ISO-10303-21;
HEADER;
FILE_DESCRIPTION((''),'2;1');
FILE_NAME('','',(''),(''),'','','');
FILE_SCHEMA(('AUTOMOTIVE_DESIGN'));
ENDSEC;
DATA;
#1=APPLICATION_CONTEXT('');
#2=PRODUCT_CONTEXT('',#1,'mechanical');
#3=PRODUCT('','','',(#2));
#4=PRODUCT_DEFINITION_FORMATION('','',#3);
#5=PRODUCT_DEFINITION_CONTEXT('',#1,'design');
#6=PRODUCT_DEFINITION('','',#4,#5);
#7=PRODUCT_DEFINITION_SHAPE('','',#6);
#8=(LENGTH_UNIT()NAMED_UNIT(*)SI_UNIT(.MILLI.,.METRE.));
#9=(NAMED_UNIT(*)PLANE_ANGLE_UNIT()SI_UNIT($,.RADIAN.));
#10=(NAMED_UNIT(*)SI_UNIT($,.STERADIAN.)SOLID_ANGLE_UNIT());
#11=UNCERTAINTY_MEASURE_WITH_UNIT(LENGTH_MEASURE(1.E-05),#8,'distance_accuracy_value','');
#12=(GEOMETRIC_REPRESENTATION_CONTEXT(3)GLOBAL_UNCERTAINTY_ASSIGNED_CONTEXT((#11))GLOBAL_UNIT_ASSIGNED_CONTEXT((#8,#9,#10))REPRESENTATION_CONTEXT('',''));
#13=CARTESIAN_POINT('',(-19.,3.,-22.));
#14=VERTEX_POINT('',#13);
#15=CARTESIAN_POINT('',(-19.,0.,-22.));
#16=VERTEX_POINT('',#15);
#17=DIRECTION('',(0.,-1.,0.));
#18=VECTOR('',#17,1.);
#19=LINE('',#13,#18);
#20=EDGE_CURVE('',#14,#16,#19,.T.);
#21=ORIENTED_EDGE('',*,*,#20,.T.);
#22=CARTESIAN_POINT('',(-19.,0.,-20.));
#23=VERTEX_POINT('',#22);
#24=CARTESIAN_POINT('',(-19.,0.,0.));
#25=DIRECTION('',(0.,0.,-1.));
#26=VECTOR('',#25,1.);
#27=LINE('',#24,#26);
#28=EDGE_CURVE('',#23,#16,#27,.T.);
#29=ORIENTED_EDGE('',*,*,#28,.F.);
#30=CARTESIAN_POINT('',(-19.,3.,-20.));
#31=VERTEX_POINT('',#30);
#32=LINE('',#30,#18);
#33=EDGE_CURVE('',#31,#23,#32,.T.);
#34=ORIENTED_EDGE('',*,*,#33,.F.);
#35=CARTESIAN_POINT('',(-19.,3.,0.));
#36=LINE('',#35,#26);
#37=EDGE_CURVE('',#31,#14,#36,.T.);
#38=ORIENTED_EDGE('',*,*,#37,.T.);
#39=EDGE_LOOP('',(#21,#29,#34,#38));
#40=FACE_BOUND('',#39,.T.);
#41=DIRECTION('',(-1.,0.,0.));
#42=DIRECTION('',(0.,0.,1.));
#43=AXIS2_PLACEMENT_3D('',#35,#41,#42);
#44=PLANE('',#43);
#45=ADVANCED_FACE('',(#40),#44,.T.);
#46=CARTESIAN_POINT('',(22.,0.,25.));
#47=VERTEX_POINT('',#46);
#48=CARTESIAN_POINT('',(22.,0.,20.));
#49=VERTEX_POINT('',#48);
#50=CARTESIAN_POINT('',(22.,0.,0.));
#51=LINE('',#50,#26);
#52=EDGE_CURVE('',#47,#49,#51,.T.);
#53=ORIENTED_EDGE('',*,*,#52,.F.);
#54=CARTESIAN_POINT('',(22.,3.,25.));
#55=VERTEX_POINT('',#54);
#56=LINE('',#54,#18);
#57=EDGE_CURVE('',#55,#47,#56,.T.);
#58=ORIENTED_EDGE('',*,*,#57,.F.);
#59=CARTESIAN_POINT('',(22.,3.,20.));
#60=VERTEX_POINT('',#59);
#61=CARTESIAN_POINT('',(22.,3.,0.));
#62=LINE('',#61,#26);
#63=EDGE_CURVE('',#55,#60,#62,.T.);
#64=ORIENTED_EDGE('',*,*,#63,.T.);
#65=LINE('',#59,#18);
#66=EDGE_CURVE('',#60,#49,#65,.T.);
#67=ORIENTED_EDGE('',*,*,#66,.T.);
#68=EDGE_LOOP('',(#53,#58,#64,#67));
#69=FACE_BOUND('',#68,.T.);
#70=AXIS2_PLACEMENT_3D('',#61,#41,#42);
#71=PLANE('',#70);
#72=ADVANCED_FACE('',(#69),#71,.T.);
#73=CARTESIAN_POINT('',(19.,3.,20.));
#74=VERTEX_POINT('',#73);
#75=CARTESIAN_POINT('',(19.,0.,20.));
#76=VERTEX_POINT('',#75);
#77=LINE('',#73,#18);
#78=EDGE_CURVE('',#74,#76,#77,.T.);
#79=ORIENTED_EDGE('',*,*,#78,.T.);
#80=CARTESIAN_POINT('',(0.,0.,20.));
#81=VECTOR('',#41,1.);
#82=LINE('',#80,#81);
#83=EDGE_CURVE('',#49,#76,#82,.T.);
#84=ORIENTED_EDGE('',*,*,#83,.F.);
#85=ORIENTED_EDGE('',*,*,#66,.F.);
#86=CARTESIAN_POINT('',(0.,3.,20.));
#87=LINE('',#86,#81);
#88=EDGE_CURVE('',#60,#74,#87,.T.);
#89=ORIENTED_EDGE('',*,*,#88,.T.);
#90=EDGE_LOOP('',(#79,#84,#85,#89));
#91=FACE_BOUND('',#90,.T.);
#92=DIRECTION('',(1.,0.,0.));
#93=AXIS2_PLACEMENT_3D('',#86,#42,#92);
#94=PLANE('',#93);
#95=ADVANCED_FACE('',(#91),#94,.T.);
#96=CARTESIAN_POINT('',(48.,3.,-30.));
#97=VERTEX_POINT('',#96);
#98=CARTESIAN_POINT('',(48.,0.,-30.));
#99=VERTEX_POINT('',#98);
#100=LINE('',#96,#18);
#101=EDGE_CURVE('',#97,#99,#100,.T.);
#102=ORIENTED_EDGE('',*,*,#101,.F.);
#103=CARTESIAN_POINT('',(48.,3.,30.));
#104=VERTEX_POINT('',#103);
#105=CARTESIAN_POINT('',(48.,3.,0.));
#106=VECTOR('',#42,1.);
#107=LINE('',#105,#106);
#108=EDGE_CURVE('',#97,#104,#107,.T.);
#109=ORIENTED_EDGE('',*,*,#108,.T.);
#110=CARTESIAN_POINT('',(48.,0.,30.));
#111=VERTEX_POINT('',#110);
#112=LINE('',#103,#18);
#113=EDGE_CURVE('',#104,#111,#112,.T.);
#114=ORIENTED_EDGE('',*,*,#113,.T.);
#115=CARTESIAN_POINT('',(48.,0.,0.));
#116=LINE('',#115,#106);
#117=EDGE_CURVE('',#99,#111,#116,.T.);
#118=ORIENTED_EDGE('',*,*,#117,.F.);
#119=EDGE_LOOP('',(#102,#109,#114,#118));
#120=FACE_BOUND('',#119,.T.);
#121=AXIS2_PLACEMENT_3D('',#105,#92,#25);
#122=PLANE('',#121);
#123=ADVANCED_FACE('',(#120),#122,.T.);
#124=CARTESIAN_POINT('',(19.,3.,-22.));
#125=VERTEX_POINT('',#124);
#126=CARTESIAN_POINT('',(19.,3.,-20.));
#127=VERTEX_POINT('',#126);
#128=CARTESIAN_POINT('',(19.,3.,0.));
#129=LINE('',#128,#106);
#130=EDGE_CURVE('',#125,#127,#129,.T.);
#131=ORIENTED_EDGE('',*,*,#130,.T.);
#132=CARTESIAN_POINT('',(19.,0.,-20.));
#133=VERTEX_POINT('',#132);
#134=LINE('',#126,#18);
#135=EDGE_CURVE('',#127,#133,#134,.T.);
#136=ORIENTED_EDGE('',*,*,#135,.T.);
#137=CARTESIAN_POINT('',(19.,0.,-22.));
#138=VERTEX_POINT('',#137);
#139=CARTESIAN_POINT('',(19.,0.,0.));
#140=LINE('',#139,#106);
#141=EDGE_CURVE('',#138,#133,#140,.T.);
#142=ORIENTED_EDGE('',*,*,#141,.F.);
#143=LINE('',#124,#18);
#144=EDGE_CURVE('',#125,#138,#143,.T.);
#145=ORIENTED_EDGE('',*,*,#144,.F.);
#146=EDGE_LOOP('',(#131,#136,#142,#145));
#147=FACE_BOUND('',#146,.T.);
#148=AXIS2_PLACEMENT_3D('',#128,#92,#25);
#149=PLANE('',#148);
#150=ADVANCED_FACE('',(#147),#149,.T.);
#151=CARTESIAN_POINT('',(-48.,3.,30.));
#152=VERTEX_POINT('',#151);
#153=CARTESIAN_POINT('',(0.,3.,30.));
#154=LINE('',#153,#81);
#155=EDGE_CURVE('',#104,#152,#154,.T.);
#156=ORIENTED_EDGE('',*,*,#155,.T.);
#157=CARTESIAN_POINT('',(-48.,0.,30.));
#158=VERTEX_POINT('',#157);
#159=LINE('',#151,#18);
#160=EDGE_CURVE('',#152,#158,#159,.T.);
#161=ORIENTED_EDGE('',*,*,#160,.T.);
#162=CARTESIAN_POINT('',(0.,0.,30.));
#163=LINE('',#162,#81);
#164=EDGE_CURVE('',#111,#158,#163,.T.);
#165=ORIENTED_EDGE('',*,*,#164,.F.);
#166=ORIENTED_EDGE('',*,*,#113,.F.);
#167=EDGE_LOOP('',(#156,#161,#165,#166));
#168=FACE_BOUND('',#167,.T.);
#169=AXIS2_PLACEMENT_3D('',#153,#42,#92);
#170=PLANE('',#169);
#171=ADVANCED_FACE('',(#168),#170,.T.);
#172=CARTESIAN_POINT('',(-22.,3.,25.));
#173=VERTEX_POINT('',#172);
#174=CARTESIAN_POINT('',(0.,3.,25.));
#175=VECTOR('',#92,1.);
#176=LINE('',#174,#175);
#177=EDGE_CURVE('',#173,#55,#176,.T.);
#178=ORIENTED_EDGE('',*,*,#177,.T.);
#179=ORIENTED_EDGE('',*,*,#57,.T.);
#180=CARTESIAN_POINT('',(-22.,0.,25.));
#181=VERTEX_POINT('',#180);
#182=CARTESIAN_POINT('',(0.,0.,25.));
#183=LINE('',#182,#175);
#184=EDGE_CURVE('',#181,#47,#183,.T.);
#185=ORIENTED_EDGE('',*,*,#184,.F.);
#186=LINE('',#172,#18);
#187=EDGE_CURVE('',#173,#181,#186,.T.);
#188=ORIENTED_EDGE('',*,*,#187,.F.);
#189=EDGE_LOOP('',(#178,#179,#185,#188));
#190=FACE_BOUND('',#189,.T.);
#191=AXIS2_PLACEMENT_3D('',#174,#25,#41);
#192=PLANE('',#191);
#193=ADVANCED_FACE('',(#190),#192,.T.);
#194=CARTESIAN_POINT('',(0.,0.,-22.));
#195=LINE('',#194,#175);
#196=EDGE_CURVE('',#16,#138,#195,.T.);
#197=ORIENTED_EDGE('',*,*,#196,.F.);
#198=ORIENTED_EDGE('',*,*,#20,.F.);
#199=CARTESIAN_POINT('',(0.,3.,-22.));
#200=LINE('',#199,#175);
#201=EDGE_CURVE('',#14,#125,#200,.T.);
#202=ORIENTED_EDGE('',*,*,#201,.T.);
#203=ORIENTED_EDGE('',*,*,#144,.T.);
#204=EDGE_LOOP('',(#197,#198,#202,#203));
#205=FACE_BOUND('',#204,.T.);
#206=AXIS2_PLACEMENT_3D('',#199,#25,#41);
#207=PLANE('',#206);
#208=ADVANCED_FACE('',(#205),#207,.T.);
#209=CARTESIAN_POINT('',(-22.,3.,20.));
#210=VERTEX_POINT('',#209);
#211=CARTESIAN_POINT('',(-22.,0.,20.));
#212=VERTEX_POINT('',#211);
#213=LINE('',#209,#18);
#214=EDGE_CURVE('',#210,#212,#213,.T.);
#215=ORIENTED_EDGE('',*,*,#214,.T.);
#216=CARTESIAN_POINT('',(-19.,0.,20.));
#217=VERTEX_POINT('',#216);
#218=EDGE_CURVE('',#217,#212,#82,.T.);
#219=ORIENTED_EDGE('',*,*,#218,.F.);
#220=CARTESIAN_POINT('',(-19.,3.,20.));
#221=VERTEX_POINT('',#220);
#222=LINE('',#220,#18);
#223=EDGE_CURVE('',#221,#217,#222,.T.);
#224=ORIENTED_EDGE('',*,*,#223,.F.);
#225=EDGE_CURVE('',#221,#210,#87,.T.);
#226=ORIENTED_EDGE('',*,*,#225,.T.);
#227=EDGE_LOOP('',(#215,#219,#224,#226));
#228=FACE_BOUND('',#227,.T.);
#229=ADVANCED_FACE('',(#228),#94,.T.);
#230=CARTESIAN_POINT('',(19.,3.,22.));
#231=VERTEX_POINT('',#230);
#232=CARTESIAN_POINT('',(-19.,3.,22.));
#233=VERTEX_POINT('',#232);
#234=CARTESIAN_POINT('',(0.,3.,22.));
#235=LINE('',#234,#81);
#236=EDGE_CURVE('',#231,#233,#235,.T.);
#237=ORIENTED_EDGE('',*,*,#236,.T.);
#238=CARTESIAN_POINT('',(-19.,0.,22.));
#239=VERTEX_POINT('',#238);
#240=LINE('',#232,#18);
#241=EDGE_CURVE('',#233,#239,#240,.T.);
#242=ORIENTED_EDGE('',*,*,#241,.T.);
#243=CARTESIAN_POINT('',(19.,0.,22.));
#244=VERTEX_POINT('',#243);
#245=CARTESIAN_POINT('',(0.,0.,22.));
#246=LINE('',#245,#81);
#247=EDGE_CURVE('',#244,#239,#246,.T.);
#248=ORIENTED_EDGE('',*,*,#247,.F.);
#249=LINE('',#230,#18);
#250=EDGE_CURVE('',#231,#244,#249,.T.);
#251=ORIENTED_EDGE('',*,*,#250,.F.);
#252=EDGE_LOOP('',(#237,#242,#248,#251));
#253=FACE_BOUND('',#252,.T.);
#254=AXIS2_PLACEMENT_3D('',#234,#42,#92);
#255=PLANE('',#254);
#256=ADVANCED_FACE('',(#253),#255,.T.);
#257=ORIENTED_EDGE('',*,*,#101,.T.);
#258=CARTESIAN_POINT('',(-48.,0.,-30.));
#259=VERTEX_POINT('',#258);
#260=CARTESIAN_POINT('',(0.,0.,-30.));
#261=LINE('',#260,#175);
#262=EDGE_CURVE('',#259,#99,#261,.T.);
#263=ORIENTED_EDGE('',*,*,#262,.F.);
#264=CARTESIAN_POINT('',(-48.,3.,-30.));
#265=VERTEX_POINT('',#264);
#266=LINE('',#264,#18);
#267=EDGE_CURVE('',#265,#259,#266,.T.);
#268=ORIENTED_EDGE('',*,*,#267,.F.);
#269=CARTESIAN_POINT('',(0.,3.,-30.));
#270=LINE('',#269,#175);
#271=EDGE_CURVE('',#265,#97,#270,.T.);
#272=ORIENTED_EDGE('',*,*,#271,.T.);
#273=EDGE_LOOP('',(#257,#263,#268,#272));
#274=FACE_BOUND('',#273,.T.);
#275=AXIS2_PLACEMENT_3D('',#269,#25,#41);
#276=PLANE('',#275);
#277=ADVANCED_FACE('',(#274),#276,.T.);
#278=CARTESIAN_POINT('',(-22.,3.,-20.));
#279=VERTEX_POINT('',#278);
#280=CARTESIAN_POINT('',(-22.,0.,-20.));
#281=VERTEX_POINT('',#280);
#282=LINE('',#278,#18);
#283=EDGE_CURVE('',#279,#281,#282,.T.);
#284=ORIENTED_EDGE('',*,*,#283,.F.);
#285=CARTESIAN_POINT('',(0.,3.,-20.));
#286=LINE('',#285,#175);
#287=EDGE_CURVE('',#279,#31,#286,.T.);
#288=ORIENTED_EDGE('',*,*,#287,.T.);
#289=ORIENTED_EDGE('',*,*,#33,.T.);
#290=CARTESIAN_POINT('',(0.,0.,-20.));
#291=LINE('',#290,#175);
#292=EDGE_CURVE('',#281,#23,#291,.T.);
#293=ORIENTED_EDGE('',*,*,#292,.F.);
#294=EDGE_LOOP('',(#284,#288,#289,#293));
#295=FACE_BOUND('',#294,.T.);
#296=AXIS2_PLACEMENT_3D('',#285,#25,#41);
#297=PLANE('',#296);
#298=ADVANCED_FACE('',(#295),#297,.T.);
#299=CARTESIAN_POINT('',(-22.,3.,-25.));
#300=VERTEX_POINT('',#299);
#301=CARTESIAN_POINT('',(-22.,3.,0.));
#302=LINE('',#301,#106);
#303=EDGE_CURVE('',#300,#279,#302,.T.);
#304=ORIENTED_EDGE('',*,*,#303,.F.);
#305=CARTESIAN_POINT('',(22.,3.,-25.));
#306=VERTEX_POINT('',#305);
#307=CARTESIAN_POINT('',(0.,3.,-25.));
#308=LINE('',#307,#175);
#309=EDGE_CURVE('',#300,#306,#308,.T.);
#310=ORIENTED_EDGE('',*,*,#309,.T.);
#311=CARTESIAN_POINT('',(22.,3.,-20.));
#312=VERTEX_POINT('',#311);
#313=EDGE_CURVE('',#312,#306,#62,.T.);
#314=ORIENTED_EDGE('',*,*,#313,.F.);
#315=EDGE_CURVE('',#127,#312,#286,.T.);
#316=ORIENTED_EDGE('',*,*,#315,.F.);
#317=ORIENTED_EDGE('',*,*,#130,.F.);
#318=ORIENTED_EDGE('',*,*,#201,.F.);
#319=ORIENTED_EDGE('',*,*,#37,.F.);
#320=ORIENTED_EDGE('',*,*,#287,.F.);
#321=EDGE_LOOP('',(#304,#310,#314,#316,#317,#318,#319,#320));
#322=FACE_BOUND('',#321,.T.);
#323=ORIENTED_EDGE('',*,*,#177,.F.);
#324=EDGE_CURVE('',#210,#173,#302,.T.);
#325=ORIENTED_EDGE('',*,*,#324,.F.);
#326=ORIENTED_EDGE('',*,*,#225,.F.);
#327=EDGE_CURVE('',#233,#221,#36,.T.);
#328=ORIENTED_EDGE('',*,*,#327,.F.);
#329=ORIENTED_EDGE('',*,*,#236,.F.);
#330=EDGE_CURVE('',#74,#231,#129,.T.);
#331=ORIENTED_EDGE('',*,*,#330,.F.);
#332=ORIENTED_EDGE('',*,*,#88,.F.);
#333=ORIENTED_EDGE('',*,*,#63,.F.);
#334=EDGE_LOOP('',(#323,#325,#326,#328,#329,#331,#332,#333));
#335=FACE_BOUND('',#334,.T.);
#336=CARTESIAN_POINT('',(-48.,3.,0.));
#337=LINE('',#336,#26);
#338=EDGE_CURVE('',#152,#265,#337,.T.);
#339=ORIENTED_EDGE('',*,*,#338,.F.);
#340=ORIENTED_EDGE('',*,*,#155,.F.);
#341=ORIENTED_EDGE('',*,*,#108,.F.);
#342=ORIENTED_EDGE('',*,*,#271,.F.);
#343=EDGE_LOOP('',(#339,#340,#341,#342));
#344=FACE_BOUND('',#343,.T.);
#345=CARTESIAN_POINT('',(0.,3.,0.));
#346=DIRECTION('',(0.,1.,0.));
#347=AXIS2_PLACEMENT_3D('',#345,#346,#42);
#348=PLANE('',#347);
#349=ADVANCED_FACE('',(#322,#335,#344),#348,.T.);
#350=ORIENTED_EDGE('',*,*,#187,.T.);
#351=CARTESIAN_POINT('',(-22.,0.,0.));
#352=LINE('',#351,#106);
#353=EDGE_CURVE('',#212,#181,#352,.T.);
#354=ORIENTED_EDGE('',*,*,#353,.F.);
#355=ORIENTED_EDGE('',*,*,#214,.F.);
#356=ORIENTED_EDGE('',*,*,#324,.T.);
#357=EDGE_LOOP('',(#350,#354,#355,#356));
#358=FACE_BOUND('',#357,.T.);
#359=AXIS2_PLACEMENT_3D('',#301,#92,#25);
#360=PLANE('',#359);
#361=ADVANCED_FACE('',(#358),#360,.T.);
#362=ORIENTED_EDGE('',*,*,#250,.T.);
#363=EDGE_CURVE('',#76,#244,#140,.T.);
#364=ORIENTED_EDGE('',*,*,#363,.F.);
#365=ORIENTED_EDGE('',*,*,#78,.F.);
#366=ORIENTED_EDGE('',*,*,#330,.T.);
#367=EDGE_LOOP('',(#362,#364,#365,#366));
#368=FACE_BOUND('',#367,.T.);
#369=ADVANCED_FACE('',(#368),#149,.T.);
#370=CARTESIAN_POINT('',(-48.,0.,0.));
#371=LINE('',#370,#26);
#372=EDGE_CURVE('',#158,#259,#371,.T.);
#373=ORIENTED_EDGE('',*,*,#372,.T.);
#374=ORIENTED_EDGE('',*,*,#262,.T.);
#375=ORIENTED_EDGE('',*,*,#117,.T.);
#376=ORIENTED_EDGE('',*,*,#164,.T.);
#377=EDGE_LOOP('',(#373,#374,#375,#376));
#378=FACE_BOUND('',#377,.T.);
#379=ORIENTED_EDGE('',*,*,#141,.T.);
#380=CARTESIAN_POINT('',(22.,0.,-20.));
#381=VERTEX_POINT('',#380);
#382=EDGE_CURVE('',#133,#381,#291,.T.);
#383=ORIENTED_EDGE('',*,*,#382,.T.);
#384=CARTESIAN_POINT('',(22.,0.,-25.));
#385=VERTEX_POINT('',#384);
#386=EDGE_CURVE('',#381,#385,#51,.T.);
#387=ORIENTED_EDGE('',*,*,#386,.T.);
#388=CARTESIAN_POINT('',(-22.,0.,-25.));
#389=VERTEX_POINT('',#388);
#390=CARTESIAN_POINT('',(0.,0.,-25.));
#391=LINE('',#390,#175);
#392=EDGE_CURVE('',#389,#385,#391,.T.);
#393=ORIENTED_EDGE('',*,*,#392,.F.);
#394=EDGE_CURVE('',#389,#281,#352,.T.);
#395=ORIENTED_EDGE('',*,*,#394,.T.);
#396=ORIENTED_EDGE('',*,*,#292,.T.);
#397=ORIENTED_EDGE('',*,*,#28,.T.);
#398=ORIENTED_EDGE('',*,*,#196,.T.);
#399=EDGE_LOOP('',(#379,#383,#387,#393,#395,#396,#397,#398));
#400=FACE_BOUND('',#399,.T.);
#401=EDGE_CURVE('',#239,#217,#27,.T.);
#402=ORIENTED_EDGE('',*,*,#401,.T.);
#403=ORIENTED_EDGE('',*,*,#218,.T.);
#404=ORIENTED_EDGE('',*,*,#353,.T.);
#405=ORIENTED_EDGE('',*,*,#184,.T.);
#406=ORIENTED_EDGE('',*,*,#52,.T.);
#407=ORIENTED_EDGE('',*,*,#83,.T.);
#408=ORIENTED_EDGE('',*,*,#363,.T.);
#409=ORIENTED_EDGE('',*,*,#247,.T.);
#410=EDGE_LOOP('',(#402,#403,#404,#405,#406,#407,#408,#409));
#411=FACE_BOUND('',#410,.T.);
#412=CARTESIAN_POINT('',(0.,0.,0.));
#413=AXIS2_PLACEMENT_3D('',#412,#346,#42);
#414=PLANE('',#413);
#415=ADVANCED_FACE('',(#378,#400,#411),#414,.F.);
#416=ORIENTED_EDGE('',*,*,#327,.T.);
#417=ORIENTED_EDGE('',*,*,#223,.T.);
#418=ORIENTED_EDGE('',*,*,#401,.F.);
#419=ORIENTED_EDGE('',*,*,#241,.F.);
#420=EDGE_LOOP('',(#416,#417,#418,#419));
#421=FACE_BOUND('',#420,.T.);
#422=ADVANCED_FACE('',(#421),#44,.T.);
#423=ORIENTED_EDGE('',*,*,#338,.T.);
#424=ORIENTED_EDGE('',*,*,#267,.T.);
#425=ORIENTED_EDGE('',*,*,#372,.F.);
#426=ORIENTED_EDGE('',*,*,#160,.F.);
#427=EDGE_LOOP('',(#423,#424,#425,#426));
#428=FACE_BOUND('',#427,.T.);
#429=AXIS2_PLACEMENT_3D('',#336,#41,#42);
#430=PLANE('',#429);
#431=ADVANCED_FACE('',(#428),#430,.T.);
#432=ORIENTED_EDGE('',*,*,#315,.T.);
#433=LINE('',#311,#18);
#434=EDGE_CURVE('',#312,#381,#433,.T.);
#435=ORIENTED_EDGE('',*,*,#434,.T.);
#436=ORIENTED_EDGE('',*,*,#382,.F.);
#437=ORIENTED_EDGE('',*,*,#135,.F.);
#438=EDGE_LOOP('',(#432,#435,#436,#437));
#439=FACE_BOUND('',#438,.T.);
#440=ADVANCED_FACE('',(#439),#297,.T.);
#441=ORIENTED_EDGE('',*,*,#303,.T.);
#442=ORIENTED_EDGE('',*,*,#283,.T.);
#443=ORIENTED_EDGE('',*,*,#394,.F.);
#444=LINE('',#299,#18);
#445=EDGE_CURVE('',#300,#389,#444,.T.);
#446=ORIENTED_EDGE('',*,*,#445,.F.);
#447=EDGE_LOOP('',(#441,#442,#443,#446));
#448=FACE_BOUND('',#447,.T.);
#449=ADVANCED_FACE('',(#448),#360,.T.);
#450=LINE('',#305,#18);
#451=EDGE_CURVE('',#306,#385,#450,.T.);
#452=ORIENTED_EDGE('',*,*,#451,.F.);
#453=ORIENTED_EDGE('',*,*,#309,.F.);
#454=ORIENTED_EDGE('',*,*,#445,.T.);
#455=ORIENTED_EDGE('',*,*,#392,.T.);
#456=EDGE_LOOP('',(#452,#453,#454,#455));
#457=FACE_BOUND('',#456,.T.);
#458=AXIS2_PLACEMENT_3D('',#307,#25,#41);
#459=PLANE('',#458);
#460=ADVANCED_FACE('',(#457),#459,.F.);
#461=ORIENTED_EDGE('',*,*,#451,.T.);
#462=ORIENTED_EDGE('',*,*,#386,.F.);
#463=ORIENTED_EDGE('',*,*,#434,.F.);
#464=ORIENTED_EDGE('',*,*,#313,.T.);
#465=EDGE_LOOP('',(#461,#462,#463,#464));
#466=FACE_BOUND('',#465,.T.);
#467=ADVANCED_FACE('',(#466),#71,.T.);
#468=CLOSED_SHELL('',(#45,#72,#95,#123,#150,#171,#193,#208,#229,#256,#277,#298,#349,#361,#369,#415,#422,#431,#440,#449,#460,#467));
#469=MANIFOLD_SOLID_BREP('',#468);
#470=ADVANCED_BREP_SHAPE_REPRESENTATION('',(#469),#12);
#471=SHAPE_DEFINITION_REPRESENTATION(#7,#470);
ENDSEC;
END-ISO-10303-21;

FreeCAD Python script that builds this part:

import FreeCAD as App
import Part
import Sketcher
from FreeCAD import Vector
Q = App.Units.Quantity

doc = App.newDocument("Part")
body = doc.addObject("PartDesign::Body", "Body")

# Sketch on XZ plane
sketch1 = doc.addObject("Sketcher::SketchObject", "Sketch")
body.addObject(sketch1)
sketch1.AttachmentSupport = (doc.XZ_Plane, [""])
sketch1.MapMode = "FlatFace"
sketch1.addGeometry([
    Part.LineSegment(Vector(-48, -30, 0), Vector(-48, 30, 0)),  # 0
    Part.LineSegment(Vector(-48, 30, 0), Vector(48, 30, 0)),  # 1
    Part.LineSegment(Vector(48, 30, 0), Vector(48, -30, 0)),  # 2
    Part.LineSegment(Vector(48, -30, 0), Vector(-48, -30, 0)),  # 3
    Part.LineSegment(Vector(-22, -25, 0), Vector(22, -25, 0)),  # 4
    Part.LineSegment(Vector(22, -25, 0), Vector(22, -20, 0)),  # 5
    Part.LineSegment(Vector(22, -20, 0), Vector(19, -20, 0)),  # 6
    Part.LineSegment(Vector(19, -20, 0), Vector(19, -22, 0)),  # 7
    Part.LineSegment(Vector(19, -22, 0), Vector(-19, -22, 0)),  # 8
    Part.LineSegment(Vector(-19, -22, 0), Vector(-19, -20, 0)),  # 9
    Part.LineSegment(Vector(-19, -20, 0), Vector(-22, -20, 0)),  # 10
    Part.LineSegment(Vector(-22, -20, 0), Vector(-22, -25, 0)),  # 11
    Part.LineSegment(Vector(-22, 25, 0), Vector(-22, 20, 0)),  # 12
    Part.LineSegment(Vector(-22, 20, 0), Vector(-19, 20, 0)),  # 13
    Part.LineSegment(Vector(-19, 20, 0), Vector(-19, 22, 0)),  # 14
    Part.LineSegment(Vector(-19, 22, 0), Vector(19, 22, 0)),  # 15
    Part.LineSegment(Vector(19, 22, 0), Vector(19, 20, 0)),  # 16
    Part.LineSegment(Vector(19, 20, 0), Vector(22, 20, 0)),  # 17
    Part.LineSegment(Vector(22, 20, 0), Vector(22, 25, 0)),  # 18
    Part.LineSegment(Vector(22, 25, 0), Vector(-22, 25, 0)),  # 19
], False)
sketch1.addConstraint([
    Sketcher.Constraint("Coincident", 0, 2, 1, 1),
    Sketcher.Constraint("Coincident", 1, 2, 2, 1),
    Sketcher.Constraint("Coincident", 2, 2, 3, 1),
    Sketcher.Constraint("Coincident", 3, 2, 0, 1),
    Sketcher.Constraint("Coincident", 4, 2, 5, 1),
    Sketcher.Constraint("Coincident", 5, 2, 6, 1),
    Sketcher.Constraint("Coincident", 6, 2, 7, 1),
    Sketcher.Constraint("Coincident", 7, 2, 8, 1),
    Sketcher.Constraint("Coincident", 8, 2, 9, 1),
    Sketcher.Constraint("Coincident", 9, 2, 10, 1),
    Sketcher.Constraint("Coincident", 10, 2, 11, 1),
    Sketcher.Constraint("Coincident", 11, 2, 4, 1),
    Sketcher.Constraint("Coincident", 12, 2, 13, 1),
    Sketcher.Constraint("Coincident", 13, 2, 14, 1),
    Sketcher.Constraint("Coincident", 14, 2, 15, 1),
    Sketcher.Constraint("Coincident", 15, 2, 16, 1),
    Sketcher.Constraint("Coincident", 16, 2, 17, 1),
    Sketcher.Constraint("Coincident", 17, 2, 18, 1),
    Sketcher.Constraint("Coincident", 18, 2, 19, 1),
    Sketcher.Constraint("Coincident", 19, 2, 12, 1),
    Sketcher.Constraint("Vertical", 0),
    Sketcher.Constraint("Horizontal", 1),
    Sketcher.Constraint("Vertical", 2),
    Sketcher.Constraint("Horizontal", 3),
    Sketcher.Constraint("Horizontal", 4),
    Sketcher.Constraint("Vertical", 5),
    Sketcher.Constraint("Horizontal", 6),
    Sketcher.Constraint("Vertical", 7),
    Sketcher.Constraint("Horizontal", 8),
    Sketcher.Constraint("Vertical", 9),
    Sketcher.Constraint("Horizontal", 10),
    Sketcher.Constraint("Vertical", 11),
    Sketcher.Constraint("Vertical", 12),
    Sketcher.Constraint("Horizontal", 13),
    Sketcher.Constraint("Vertical", 14),
    Sketcher.Constraint("Horizontal", 15),
    Sketcher.Constraint("Vertical", 16),
    Sketcher.Constraint("Horizontal", 17),
    Sketcher.Constraint("Vertical", 18),
    Sketcher.Constraint("Horizontal", 19),
    Sketcher.Constraint("Symmetric", 0, 2, 2, 2, -1, 1),
    Sketcher.Constraint("Symmetric", 5, 2, 12, 2, -1, 1),
    Sketcher.Constraint("Symmetric", 7, 2, 14, 2, -1, 1),
    Sketcher.Constraint("Symmetric", 9, 2, 16, 2, -1, 1),
    Sketcher.Constraint("Symmetric", 11, 2, 18, 2, -1, 1),
    Sketcher.Constraint("Symmetric", 6, 2, 9, 2, -2),
    Sketcher.Constraint("Vertical", 11, 2, 12, 2),
    Sketcher.Constraint("DistanceX", 1, 1, 1, 2, Q("96 mm")),
    Sketcher.Constraint("DistanceX", 4, 1, 4, 2, Q("44 mm")),
    Sketcher.Constraint("DistanceX", 6, 2, 6, 1, Q("3 mm")),
    Sketcher.Constraint("DistanceY", 0, 1, 0, 2, Q("60 mm")),
    Sketcher.Constraint("DistanceY", 5, 1, 5, 2, Q("5 mm")),
    Sketcher.Constraint("DistanceY", 7, 2, 7, 1, Q("2 mm")),
    Sketcher.Constraint("DistanceY", 4, 2, -1, 1, Q("25 mm")),
])
pad1 = doc.addObject("PartDesign::Pad", "Pad")
body.addObject(pad1)
pad1.Profile = sketch1
pad1.Length = 3
pad1.Reversed = True

doc.recompute()
